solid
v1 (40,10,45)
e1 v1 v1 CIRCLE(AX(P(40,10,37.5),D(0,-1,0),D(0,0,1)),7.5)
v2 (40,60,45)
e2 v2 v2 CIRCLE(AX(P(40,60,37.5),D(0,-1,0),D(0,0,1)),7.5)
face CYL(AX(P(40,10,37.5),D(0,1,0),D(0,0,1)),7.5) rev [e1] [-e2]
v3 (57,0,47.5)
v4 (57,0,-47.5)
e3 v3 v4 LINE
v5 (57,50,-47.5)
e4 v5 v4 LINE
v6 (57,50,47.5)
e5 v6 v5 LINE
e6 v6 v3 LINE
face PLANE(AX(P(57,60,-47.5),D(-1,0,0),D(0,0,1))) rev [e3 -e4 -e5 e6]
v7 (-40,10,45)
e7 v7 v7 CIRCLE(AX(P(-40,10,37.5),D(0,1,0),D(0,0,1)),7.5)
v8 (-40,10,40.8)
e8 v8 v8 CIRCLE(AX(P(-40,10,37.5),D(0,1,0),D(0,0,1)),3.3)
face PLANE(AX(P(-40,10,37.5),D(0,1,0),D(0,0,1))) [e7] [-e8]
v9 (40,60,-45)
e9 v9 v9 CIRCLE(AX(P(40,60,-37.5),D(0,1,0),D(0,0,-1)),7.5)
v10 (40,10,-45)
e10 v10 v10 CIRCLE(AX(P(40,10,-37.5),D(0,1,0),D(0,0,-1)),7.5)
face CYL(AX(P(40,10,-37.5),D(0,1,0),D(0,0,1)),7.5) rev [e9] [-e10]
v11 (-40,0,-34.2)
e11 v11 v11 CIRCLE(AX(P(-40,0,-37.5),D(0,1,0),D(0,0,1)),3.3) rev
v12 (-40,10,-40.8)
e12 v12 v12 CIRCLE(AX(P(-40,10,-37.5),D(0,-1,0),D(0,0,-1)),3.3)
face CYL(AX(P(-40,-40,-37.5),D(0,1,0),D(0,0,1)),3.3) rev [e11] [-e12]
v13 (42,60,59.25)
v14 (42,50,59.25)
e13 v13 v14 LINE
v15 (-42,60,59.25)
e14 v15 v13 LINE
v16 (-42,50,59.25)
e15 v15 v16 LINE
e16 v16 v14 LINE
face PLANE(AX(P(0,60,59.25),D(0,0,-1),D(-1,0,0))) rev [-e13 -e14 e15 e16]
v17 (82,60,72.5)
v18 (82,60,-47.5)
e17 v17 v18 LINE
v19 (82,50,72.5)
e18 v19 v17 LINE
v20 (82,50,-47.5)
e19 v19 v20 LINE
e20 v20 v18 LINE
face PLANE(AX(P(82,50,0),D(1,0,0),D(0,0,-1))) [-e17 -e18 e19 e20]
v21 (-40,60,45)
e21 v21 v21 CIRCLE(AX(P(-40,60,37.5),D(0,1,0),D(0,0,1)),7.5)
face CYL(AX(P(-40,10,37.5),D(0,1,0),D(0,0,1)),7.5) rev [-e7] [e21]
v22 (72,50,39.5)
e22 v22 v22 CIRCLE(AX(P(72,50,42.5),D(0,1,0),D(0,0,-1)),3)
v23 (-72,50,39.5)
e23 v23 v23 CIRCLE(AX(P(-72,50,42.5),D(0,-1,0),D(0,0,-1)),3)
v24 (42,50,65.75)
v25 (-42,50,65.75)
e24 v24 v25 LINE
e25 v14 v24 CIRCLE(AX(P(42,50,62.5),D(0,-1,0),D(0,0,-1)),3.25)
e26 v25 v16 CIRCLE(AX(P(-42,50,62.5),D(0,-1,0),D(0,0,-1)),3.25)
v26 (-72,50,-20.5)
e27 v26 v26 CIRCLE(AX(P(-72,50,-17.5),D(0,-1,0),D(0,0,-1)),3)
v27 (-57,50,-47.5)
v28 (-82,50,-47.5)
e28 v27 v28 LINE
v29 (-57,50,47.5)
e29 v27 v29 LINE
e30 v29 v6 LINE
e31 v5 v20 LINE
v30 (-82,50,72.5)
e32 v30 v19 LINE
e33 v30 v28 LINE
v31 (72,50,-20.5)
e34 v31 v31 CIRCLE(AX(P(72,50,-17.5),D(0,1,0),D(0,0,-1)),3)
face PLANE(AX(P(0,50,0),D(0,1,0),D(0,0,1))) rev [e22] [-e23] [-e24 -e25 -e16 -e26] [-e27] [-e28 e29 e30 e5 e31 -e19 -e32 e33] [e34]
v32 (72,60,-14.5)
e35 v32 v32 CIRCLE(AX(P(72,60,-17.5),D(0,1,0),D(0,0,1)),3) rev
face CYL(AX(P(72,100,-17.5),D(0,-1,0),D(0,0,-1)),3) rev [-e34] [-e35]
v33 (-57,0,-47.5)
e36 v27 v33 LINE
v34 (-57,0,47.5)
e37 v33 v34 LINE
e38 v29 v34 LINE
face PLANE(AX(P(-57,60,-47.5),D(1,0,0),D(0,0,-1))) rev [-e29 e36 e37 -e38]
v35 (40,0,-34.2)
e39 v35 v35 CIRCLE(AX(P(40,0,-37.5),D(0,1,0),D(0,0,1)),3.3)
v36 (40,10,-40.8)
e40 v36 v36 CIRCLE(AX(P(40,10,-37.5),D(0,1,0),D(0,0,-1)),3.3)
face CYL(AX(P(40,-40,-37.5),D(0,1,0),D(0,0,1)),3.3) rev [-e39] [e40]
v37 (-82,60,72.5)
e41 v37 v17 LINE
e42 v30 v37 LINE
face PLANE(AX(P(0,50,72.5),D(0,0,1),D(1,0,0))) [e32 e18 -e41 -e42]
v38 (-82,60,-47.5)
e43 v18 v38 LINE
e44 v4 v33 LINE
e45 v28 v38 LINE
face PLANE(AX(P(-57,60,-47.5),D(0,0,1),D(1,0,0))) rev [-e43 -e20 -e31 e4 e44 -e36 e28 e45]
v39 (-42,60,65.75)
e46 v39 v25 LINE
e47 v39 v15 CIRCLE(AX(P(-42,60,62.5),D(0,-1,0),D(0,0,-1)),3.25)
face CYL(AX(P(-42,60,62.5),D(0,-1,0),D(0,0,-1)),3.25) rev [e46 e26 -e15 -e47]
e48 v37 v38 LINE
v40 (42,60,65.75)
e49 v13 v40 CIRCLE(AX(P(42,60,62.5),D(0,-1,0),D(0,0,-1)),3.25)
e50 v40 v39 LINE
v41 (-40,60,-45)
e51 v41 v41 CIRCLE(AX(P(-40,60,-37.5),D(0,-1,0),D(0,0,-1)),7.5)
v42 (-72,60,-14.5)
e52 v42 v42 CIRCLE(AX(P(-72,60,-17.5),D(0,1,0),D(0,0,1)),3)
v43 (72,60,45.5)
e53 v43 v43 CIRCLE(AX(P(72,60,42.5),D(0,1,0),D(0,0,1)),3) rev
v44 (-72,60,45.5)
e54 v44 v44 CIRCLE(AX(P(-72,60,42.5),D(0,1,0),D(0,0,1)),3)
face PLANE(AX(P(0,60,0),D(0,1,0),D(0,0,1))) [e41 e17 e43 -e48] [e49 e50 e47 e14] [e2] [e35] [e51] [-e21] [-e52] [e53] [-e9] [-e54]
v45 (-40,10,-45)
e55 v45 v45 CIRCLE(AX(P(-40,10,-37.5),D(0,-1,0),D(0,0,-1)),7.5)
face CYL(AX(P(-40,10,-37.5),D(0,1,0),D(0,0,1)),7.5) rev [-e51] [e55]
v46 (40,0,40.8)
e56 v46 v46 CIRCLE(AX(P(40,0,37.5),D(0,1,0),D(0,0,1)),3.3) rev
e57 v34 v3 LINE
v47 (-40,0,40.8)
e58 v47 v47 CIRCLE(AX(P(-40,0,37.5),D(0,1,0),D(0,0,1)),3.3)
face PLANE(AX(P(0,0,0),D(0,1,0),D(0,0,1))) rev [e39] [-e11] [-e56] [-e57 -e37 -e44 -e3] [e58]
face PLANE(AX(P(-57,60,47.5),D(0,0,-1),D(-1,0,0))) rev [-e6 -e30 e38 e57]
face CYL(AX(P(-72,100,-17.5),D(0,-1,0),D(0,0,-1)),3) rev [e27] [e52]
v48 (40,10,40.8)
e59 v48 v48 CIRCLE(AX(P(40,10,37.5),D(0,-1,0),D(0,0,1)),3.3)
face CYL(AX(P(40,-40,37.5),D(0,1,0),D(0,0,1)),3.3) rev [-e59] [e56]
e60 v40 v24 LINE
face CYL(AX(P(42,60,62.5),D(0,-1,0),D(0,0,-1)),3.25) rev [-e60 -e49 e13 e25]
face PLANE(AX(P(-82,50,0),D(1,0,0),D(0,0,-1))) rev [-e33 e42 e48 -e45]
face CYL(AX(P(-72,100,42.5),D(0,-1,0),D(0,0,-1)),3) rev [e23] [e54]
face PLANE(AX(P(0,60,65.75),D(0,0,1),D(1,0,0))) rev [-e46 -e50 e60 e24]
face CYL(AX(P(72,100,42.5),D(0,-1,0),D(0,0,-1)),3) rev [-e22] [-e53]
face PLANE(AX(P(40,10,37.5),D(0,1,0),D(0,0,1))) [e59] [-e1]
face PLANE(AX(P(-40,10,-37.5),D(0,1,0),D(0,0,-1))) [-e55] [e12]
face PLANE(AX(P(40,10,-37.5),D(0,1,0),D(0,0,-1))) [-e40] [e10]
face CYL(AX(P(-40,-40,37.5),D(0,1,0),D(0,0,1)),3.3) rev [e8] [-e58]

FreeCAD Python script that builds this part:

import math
import FreeCAD as App
import Part
import Sketcher

V = App.Vector

doc = App.newDocument("Part")
params = doc.addObject("Spreadsheet::Sheet", "Params")
for row, (alias, value) in enumerate([
    ("sketch1_width", "114 mm"),
    ("sketch1_height", "95 mm"),
    ("pad1_length", "60 mm"),
    ("sketch2_width", "114 mm"),
    ("sketch2_width2", "25 mm"),
    ("sketch2_height", "95 mm"),
    ("sketch2_height2", "120 mm"),
    ("pad2_length", "10 mm"),
    ("sketch3_diameter", "15 mm"),
    ("pocket1_length", "50 mm"),
    ("sketch4_diameter", "6.6 mm"),
    ("pocket2_length", "50 mm"),
    ("sketch5_diameter", "15 mm"),
    ("pocket3_length", "50 mm"),
    ("sketch6_diameter", "6.6 mm"),
    ("pocket4_length", "50 mm"),
    ("sketch7_width", "84 mm"),
    ("sketch7_radius", "3.25 mm"),
    ("pocket5_length", "10 mm"),
    ("sketch8_diameter", "6 mm"),
    ("pocket6_length", "50 mm"),
], start=1):
    params.set(f"A{row}", alias)
    params.set(f"B{row}", "=" + value)
    params.setAlias(f"B{row}", alias)

body = doc.addObject("PartDesign::Body", "Body")

sketch1 = body.newObject("Sketcher::SketchObject", "Sketch")
sketch1.AttachmentSupport = (doc.getObject("XZ_Plane"), [""])
sketch1.MapMode = "FlatFace"
sketch1.addGeometry([
    Part.LineSegment(V(-57, -48, 0), V(-57, 48, 0)),
    Part.LineSegment(V(-57, 48, 0), V(57, 48, 0)),
    Part.LineSegment(V(57, 48, 0), V(57, -48, 0)),
    Part.LineSegment(V(57, -48, 0), V(-57, -48, 0)),
], False)
sketch1.addConstraint([
    Sketcher.Constraint("Coincident", 0, 2, 1, 1),
    Sketcher.Constraint("Coincident", 1, 2, 2, 1),
    Sketcher.Constraint("Coincident", 2, 2, 3, 1),
    Sketcher.Constraint("Coincident", 3, 2, 0, 1),
    Sketcher.Constraint("Vertical", 0),
    Sketcher.Constraint("Horizontal", 1),
    Sketcher.Constraint("Vertical", 2),
    Sketcher.Constraint("Horizontal", 3),
    Sketcher.Constraint("Symmetric", 0, 2, 2, 2, -1, 1),
    Sketcher.Constraint("DistanceX", 1, 1, 1, 2, 114.0),
    Sketcher.Constraint("DistanceY", 0, 1, 0, 2, 95.0),
])
sketch1.setExpression("Constraints[9]", "Params.sketch1_width")
sketch1.setExpression("Constraints[10]", "Params.sketch1_height")
pad1 = body.newObject("PartDesign::Pad", "Pad")
pad1.Profile = sketch1
pad1.setExpression("Length", "Params.pad1_length")
pad1.Reversed = True

sketch2 = body.newObject("Sketcher::SketchObject", "Sketch001")
sketch2.AttachmentSupport = (doc.getObject("XZ_Plane"), [""])
sketch2.MapMode = "FlatFace"
sketch2.AttachmentOffset = App.Placement(V(0, 0, -60), App.Rotation())
sketch2.addGeometry([
    Part.LineSegment(V(57, 48, 0), V(-57, 48, 0)),
    Part.LineSegment(V(-57, 48, 0), V(-57, -48, 0)),
    Part.LineSegment(V(-57, -48, 0), V(-82, -48, 0)),
    Part.LineSegment(V(-82, -48, 0), V(-82, 72, 0)),
    Part.LineSegment(V(-82, 72, 0), V(82, 72, 0)),
    Part.LineSegment(V(82, 72, 0), V(82, -48, 0)),
    Part.LineSegment(V(82, -48, 0), V(57, -48, 0)),
    Part.LineSegment(V(57, -48, 0), V(57, 48, 0)),
], False)
sketch2.addConstraint([
    Sketcher.Constraint("Coincident", 0, 2, 1, 1),
    Sketcher.Constraint("Coincident", 1, 2, 2, 1),
    Sketcher.Constraint("Coincident", 2, 2, 3, 1),
    Sketcher.Constraint("Coincident", 3, 2, 4, 1),
    Sketcher.Constraint("Coincident", 4, 2, 5, 1),
    Sketcher.Constraint("Coincident", 5, 2, 6, 1),
    Sketcher.Constraint("Coincident", 6, 2, 7, 1),
    Sketcher.Constraint("Coincident", 7, 2, 0, 1),
    Sketcher.Constraint("Horizontal", 0),
    Sketcher.Constraint("Vertical", 1),
    Sketcher.Constraint("Horizontal", 2),
    Sketcher.Constraint("Vertical", 3),
    Sketcher.Constraint("Horizontal", 4),
    Sketcher.Constraint("Vertical", 5),
    Sketcher.Constraint("Horizontal", 6),
    Sketcher.Constraint("Vertical", 7),
    Sketcher.Constraint("Symmetric", 0, 2, 6, 2, -1, 1),
    Sketcher.Constraint("Symmetric", 2, 2, 5, 2, -2),
    Sketcher.Constraint("DistanceX", 0, 2, 0, 1, 114.0),
    Sketcher.Constraint("DistanceX", 2, 2, 2, 1, 25.0),
    Sketcher.Constraint("DistanceY", 1, 2, 1, 1, 95.0),
    Sketcher.Constraint("DistanceY", 3, 1, 3, 2, 120.0),
])
sketch2.setExpression("Constraints[18]", "Params.sketch2_width")
sketch2.setExpression("Constraints[19]", "Params.sketch2_width2")
sketch2.setExpression("Constraints[20]", "Params.sketch2_height")
sketch2.setExpression("Constraints[21]", "Params.sketch2_height2")
pad2 = body.newObject("PartDesign::Pad", "Pad001")
pad2.Profile = sketch2
pad2.setExpression("Length", "Params.pad2_length")

sketch3 = body.newObject("Sketcher::SketchObject", "Sketch002")
sketch3.AttachmentSupport = (doc.getObject("XZ_Plane"), [""])
sketch3.MapMode = "FlatFace"
sketch3.AttachmentOffset = App.Placement(V(0, 0, -60), App.Rotation())
sketch3.addGeometry(Part.Circle(V(-40, 38, 0), V(0, 0, 1), 8), False)
sketch3.addConstraint([
    Sketcher.Constraint("Diameter", 0, 15.0),
    Sketcher.Constraint("DistanceX", 0, 3, -1, 1, 40.0),
    Sketcher.Constraint("DistanceY", -1, 1, 0, 3, 37.5),
])
sketch3.setExpression("Constraints[0]", "Params.sketch3_diameter")
pocket1 = body.newObject("PartDesign::Pocket", "Pocket")
pocket1.Profile = sketch3
pocket1.setExpression("Length", "Params.pocket1_length")
pocket1.Reversed = True

sketch4 = body.newObject("Sketcher::SketchObject", "Sketch003")
sketch4.AttachmentSupport = (doc.getObject("XZ_Plane"), [""])
sketch4.MapMode = "FlatFace"
sketch4.AttachmentOffset = App.Placement(V(0, 0, -10), App.Rotation())
sketch4.addGeometry(Part.Circle(V(-40, 37.5, 0), V(0, 0, 1), 3.3), False)
sketch4.addConstraint([
    Sketcher.Constraint("Diameter", 0, 6.6),
    Sketcher.Constraint("DistanceX", 0, 3, -1, 1, 40.0),
    Sketcher.Constraint("DistanceY", -1, 1, 0, 3, 37.5),
])
sketch4.setExpression("Constraints[0]", "Params.sketch4_diameter")
pocket2 = body.newObject("PartDesign::Pocket", "Pocket001")
pocket2.Profile = sketch4
pocket2.setExpression("Length", "Params.pocket2_length")
pocket2.Reversed = True
doc.recompute()

mirrored = body.newObject("PartDesign::Mirrored", "Mirrored")
mirrored.Originals = [pocket1, pocket2]
mirrored.MirrorPlane = (doc.getObject("YZ_Plane"), [""])
body.Tip = mirrored
doc.recompute()

mirrored2 = body.newObject("PartDesign::Mirrored", "Mirrored001")
mirrored2.Originals = [pocket1, pocket2]
mirrored2.MirrorPlane = (doc.getObject("XY_Plane"), [""])
body.Tip = mirrored2

sketch5 = body.newObject("Sketcher::SketchObject", "Sketch004")
sketch5.AttachmentSupport = (doc.getObject("XZ_Plane"), [""])
sketch5.MapMode = "FlatFace"
sketch5.AttachmentOffset = App.Placement(V(0, 0, -60), App.Rotation())
sketch5.addGeometry(Part.Circle(V(40, -38, 0), V(0, 0, 1), 8), False)
sketch5.addConstraint([
    Sketcher.Constraint("Diameter", 0, 15.0),
    Sketcher.Constraint("DistanceX", -1, 1, 0, 3, 40.0),
    Sketcher.Constraint("DistanceY", 0, 3, -1, 1, 37.5),
])
sketch5.setExpression("Constraints[0]", "Params.sketch5_diameter")
pocket3 = body.newObject("PartDesign::Pocket", "Pocket002")
pocket3.Profile = sketch5
pocket3.setExpression("Length", "Params.pocket3_length")
pocket3.Reversed = True

sketch6 = body.newObject("Sketcher::SketchObject", "Sketch005")
sketch6.AttachmentSupport = (doc.getObject("XZ_Plane"), [""])
sketch6.MapMode = "FlatFace"
sketch6.AttachmentOffset = App.Placement(V(0, 0, -10), App.Rotation())
sketch6.addGeometry(Part.Circle(V(40, -37.5, 0), V(0, 0, 1), 3.3), False)
sketch6.addConstraint([
    Sketcher.Constraint("Diameter", 0, 6.6),
    Sketcher.Constraint("DistanceX", -1, 1, 0, 3, 40.0),
    Sketcher.Constraint("DistanceY", 0, 3, -1, 1, 37.5),
])
sketch6.setExpression("Constraints[0]", "Params.sketch6_diameter")
pocket4 = body.newObject("PartDesign::Pocket", "Pocket003")
pocket4.Profile = sketch6
pocket4.setExpression("Length", "Params.pocket4_length")
pocket4.Reversed = True

sketch7 = body.newObject("Sketcher::SketchObject", "Sketch006")
sketch7.AttachmentSupport = (doc.getObject("XZ_Plane"), [""])
sketch7.MapMode = "FlatFace"
sketch7.AttachmentOffset = App.Placement(V(0, 0, -50), App.Rotation())
sketch7.addGeometry([
    Part.LineSegment(V(-42, 59.2, 0), V(42, 59.2, 0)),
    Part.ArcOfCircle(Part.Circle(V(42, 62.5, 0), V(0, 0, 1), 3.2), math.radians(-90), math.radians(90)),
    Part.LineSegment(V(42, 65.8, 0), V(-42, 65.8, 0)),
    Part.ArcOfCircle(Part.Circle(V(-42, 62.5, 0), V(0, 0, 1), 3.2), math.radians(90), math.radians(270)),
], False)
sketch7.addConstraint([
    Sketcher.Constraint("Tangent", 0, 2, 1, 1),
    Sketcher.Constraint("Tangent", 1, 2, 2, 1),
    Sketcher.Constraint("Tangent", 2, 2, 3, 1),
    Sketcher.Constraint("Tangent", 3, 2, 0, 1),
    Sketcher.Constraint("Horizontal", 0),
    Sketcher.Constraint("Horizontal", 2),
    Sketcher.Constraint("DistanceX", 0, 1, 0, 2, 84.0),
    Sketcher.Constraint("Radius", 1, 3.25),
    Sketcher.Constraint("DistanceX", -1, 1, 1, 3, 42.0),
    Sketcher.Constraint("DistanceY", -1, 1, 1, 3, 62.5),
])
sketch7.setExpression("Constraints[6]", "Params.sketch7_width")
sketch7.setExpression("Constraints[7]", "Params.sketch7_radius")
pocket5 = body.newObject("PartDesign::Pocket", "Pocket004")
pocket5.Profile = sketch7
pocket5.setExpression("Length", "Params.pocket5_length")

sketch8 = body.newObject("Sketcher::SketchObject", "Sketch007")
sketch8.AttachmentSupport = (doc.getObject("XZ_Plane"), [""])
sketch8.MapMode = "FlatFace"
sketch8.AttachmentOffset = App.Placement(V(0, 0, -50), App.Rotation())
sketch8.addGeometry([
    Part.Circle(V(-72, -17.5, 0), V(0, 0, 1), 3),
    Part.Circle(V(-72, 42.5, 0), V(0, 0, 1), 3),
], False)
sketch8.addConstraint([
    Sketcher.Constraint("Equal", 0, 1),
    Sketcher.Constraint("Vertical", 0, 3, 1, 3),
    Sketcher.Constraint("Diameter", 0, 6.0),
    Sketcher.Constraint("DistanceX", 0, 3, -1, 1, 72.0),
    Sketcher.Constraint("DistanceY", 0, 3, 1, 3, 60.0),
    Sketcher.Constraint("DistanceY", 0, 3, -1, 1, 17.5),
])
sketch8.setExpression("Constraints[2]", "Params.sketch8_diameter")
pocket6 = body.newObject("PartDesign::Pocket", "Pocket005")
pocket6.Profile = sketch8
pocket6.setExpression("Length", "Params.pocket6_length")
doc.recompute()

mirrored3 = body.newObject("PartDesign::Mirrored", "Mirrored002")
mirrored3.Originals = [pocket6]
mirrored3.MirrorPlane = (doc.getObject("YZ_Plane"), [""])
body.Tip = mirrored3

doc.recompute()
